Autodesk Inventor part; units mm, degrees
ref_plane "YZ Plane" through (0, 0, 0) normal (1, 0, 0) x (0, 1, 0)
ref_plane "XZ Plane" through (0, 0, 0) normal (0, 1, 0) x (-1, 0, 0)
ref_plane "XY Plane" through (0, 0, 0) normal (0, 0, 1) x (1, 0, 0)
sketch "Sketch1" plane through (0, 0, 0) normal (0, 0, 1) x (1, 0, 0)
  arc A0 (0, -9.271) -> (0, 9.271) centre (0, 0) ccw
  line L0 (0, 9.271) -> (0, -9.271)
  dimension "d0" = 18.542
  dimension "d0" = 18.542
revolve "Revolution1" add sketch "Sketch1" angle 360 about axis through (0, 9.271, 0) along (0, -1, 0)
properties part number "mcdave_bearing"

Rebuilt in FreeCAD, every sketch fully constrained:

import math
import FreeCAD as App
import Part
import Sketcher
Q = App.Units.Quantity

doc = App.newDocument("Part")
body = doc.addObject("PartDesign::Body", "Body")

# Sketch on XY plane
sketch1 = body.newObject("Sketcher::SketchObject", "Sketch")
sketch1.AttachmentSupport = (doc.getObject("XY_Plane"), [""])
sketch1.MapMode = "FlatFace"
sketch1.addGeometry([
    Part.LineSegment(App.Vector(0, 9.271, 0), App.Vector(0, -9.271, 0)),
    Part.ArcOfCircle(Part.Circle(App.Vector(0, 0, 0), App.Vector(0, 0, 1), 9.271), math.radians(-90), math.radians(90)),
], False)
sketch1.addConstraint([
    Sketcher.Constraint("Coincident", 0, 1, 1, 2),
    Sketcher.Constraint("Coincident", 1, 1, 0, 2),
    Sketcher.Constraint("Vertical", 0),
    Sketcher.Constraint("Coincident", 1, 3, -1, 1),
    Sketcher.Constraint("PointOnObject", 0, 1, -2),
    Sketcher.Constraint("Radius", 1, Q("0.365 in")),
])
revolution = body.newObject("PartDesign::Revolution", "Revolution")
revolution.Profile = sketch1
revolution.ReferenceAxis = (sketch1, ["V_Axis"])
revolution.Angle = 360

doc.recompute()
